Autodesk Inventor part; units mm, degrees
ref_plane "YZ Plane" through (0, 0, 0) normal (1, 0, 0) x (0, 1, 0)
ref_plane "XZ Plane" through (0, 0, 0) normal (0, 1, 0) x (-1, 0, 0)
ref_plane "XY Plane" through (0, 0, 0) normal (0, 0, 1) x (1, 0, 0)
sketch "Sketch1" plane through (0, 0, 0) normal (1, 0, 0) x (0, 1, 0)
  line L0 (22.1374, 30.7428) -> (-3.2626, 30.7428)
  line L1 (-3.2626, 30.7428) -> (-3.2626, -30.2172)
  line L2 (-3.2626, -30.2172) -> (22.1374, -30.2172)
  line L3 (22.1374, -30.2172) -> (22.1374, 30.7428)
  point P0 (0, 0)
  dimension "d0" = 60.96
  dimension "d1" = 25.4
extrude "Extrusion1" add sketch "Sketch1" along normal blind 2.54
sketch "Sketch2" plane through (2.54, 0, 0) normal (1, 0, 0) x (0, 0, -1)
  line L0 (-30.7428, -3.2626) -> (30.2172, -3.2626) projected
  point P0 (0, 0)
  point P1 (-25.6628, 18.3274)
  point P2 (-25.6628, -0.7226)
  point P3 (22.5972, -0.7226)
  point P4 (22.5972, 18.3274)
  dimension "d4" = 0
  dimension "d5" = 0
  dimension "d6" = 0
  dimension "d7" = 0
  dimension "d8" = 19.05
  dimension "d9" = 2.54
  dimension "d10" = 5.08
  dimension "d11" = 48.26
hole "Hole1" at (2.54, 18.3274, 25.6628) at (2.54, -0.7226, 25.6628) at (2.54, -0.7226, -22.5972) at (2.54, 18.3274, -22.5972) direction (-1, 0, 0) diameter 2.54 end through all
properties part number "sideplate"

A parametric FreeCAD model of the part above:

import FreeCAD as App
import Part
import Sketcher
from FreeCAD import Vector
Q = App.Units.Quantity

doc = App.newDocument("Part")
body = doc.addObject("PartDesign::Body", "Body")

sketch1 = doc.addObject("Sketcher::SketchObject", "Sketch")
body.addObject(sketch1)
sketch1.AttachmentSupport = (doc.YZ_Plane, [""])
sketch1.MapMode = "FlatFace"
sketch1.addGeometry(Part.LineSegment(Vector(22, -30, 0), Vector(22, 31, 0)), False)
sketch1.addGeometry(Part.LineSegment(Vector(22, 31, 0), Vector(-3, 31, 0)), False)
sketch1.addGeometry(Part.LineSegment(Vector(-3, 31, 0), Vector(-3, -30, 0)), False)
sketch1.addGeometry(Part.LineSegment(Vector(-3, -30, 0), Vector(22, -30, 0)), False)
sketch1.addConstraint(Sketcher.Constraint("Coincident", 0, 2, 1, 1))
sketch1.addConstraint(Sketcher.Constraint("Coincident", 1, 2, 2, 1))
sketch1.addConstraint(Sketcher.Constraint("Coincident", 2, 2, 3, 1))
sketch1.addConstraint(Sketcher.Constraint("Coincident", 3, 2, 0, 1))
sketch1.addConstraint(Sketcher.Constraint("Vertical", 0))
sketch1.addConstraint(Sketcher.Constraint("Horizontal", 1))
sketch1.addConstraint(Sketcher.Constraint("Vertical", 2))
sketch1.addConstraint(Sketcher.Constraint("Horizontal", 3))
sketch1.addConstraint(Sketcher.Constraint("DistanceX", 1, 2, 1, 1, Q("1 in")))
sketch1.addConstraint(Sketcher.Constraint("DistanceY", 0, 1, 0, 2, Q("2.4 in")))
sketch1.addConstraint(Sketcher.Constraint("DistanceX", -1, 1, 0, 2, 22.1374))
sketch1.addConstraint(Sketcher.Constraint("DistanceY", -1, 1, 0, 2, 30.7428))
pad1 = doc.addObject("PartDesign::Pad", "Pad")
body.addObject(pad1)
pad1.Profile = sketch1
pad1.Length = Q("0.1 in")

sketch2 = doc.addObject("Sketcher::SketchObject", "Sketch001")
body.addObject(sketch2)
sketch2.AttachmentSupport = (doc.YZ_Plane, [""])
sketch2.MapMode = "FlatFace"
sketch2.AttachmentOffset = App.Placement(Vector(0, 0, 0.1 * 25.4), App.Rotation())
sketch2.addGeometry(Part.Circle(Vector(18.3, 25.7, 0), Vector(0, 0, 1), 1.3), False)
sketch2.addGeometry(Part.Circle(Vector(-0.7, 25.7, 0), Vector(0, 0, 1), 1.3), False)
sketch2.addGeometry(Part.Circle(Vector(-0.7, -22.6, 0), Vector(0, 0, 1), 1.3), False)
sketch2.addGeometry(Part.Circle(Vector(18.3, -22.6, 0), Vector(0, 0, 1), 1.3), False)
sketch2.addConstraint(Sketcher.Constraint("Equal", 0, 1))
sketch2.addConstraint(Sketcher.Constraint("Equal", 1, 2))
sketch2.addConstraint(Sketcher.Constraint("Equal", 2, 3))
sketch2.addConstraint(Sketcher.Constraint("Horizontal", 0, 3, 1, 3))
sketch2.addConstraint(Sketcher.Constraint("Horizontal", 2, 3, 3, 3))
sketch2.addConstraint(Sketcher.Constraint("Vertical", 1, 3, 2, 3))
sketch2.addConstraint(Sketcher.Constraint("Vertical", 0, 3, 3, 3))
sketch2.addConstraint(Sketcher.Constraint("Diameter", 0, Q("0.1 in")))
sketch2.addConstraint(Sketcher.Constraint("DistanceY", 2, 3, 1, 3, Q("1.9 in")))
sketch2.addConstraint(Sketcher.Constraint("DistanceX", 1, 3, 0, 3, Q("0.75 in")))
sketch2.addConstraint(Sketcher.Constraint("DistanceX", -1, 1, 0, 3, 18.3274))
sketch2.addConstraint(Sketcher.Constraint("DistanceY", -1, 1, 0, 3, 25.6628))
doc.recompute()
hole = doc.addObject("PartDesign::Hole", "Hole")
body.addObject(hole)
hole.Profile = sketch2
hole.ThreadType = "None"
hole.Diameter = Q("0.1 in")
hole.DepthType = "ThroughAll"

doc.recompute()
